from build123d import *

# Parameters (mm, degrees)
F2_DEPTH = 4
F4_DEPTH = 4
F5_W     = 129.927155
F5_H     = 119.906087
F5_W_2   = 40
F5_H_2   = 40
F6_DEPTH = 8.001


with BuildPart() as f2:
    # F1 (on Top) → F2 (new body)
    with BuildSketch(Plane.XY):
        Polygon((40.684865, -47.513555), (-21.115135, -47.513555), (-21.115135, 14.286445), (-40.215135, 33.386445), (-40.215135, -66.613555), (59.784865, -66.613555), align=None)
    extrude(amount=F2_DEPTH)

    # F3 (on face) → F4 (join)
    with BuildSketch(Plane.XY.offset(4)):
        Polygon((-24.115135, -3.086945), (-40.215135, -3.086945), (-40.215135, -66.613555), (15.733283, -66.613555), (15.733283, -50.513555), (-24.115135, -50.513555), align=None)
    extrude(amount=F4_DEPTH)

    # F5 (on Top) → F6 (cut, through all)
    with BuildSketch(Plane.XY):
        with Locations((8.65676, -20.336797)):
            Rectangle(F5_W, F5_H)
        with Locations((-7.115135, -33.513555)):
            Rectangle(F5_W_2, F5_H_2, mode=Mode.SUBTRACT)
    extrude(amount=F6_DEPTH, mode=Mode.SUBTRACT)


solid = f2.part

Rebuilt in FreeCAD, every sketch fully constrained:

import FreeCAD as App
import Part
import Sketcher
Q = App.Units.Quantity

doc = App.newDocument("Part")
params = doc.addObject("Spreadsheet::Sheet", "Params")
for row, (alias, value) in enumerate([
    ("sketch1_width", "100 mm"),
    ("sketch1_width2", "61.8 mm"),
    ("pad1_length", "4 mm"),
    ("sketch2_width", "16.1 mm"),
    ("pad2_length", "4 mm"),
    ("sketch3_width", "40 mm"),
], start=1):
    params.set(f"A{row}", alias)
    params.set(f"B{row}", "=" + value)
    params.setAlias(f"B{row}", alias)

body = doc.addObject("PartDesign::Body", "Body")

sketch1 = body.newObject("Sketcher::SketchObject", "Sketch")
sketch1.AttachmentSupport = (doc.getObject("XY_Plane"), [""])
sketch1.MapMode = "FlatFace"
sketch1.addGeometry(Part.LineSegment(App.Vector(41, -48, 0), App.Vector(-21, -48, 0)), False)
sketch1.addGeometry(Part.LineSegment(App.Vector(-21, -48, 0), App.Vector(-21, 14, 0)), False)
sketch1.addGeometry(Part.LineSegment(App.Vector(-21, 14, 0), App.Vector(-40, 33, 0)), False)
sketch1.addGeometry(Part.LineSegment(App.Vector(-40, 33, 0), App.Vector(-40, -67, 0)), False)
sketch1.addGeometry(Part.LineSegment(App.Vector(-40, -67, 0), App.Vector(60, -67, 0)), False)
sketch1.addGeometry(Part.LineSegment(App.Vector(60, -67, 0), App.Vector(41, -48, 0)), False)
sketch1.addConstraint(Sketcher.Constraint("Coincident", 0, 2, 1, 1))
sketch1.addConstraint(Sketcher.Constraint("Coincident", 1, 2, 2, 1))
sketch1.addConstraint(Sketcher.Constraint("Coincident", 2, 2, 3, 1))
sketch1.addConstraint(Sketcher.Constraint("Coincident", 3, 2, 4, 1))
sketch1.addConstraint(Sketcher.Constraint("Coincident", 4, 2, 5, 1))
sketch1.addConstraint(Sketcher.Constraint("Coincident", 5, 2, 0, 1))
sketch1.addConstraint(Sketcher.Constraint("Horizontal", 0))
sketch1.addConstraint(Sketcher.Constraint("Vertical", 1))
sketch1.addConstraint(Sketcher.Constraint("Vertical", 3))
sketch1.addConstraint(Sketcher.Constraint("Horizontal", 4))
sketch1.addConstraint(Sketcher.Constraint("Parallel", 2, 5))
sketch1.addConstraint(Sketcher.Constraint("Equal", 0, 1))
sketch1.addConstraint(Sketcher.Constraint("Equal", 4, 3))
sketch1.addConstraint(Sketcher.Constraint("Equal", 2, 5))
sketch1.addConstraint(Sketcher.Constraint("DistanceX", 4, 1, 4, 2, Q("100 mm")))
sketch1.addConstraint(Sketcher.Constraint("DistanceX", 0, 2, 0, 1, Q("61.8 mm")))
sketch1.addConstraint(Sketcher.Constraint("DistanceX", 0, 2, -1, 1, Q("21.115135 mm")))
sketch1.addConstraint(Sketcher.Constraint("DistanceY", 0, 2, -1, 1, Q("47.513555 mm")))
sketch1.setExpression("Constraints[14]", "Params.sketch1_width")
sketch1.setExpression("Constraints[15]", "Params.sketch1_width2")
pad1 = body.newObject("PartDesign::Pad", "Pad")
pad1.Profile = sketch1
pad1.setExpression("Length", "Params.pad1_length")

sketch2 = body.newObject("Sketcher::SketchObject", "Sketch001")
sketch2.AttachmentSupport = (doc.getObject("XY_Plane"), [""])
sketch2.MapMode = "FlatFace"
sketch2.AttachmentOffset = App.Placement(App.Vector(0, 0, 4), App.Rotation())
sketch2.addGeometry(Part.LineSegment(App.Vector(-24, -3, 0), App.Vector(-40, -3, 0)), False)
sketch2.addGeometry(Part.LineSegment(App.Vector(-40, -3, 0), App.Vector(-40, -67, 0)), False)
sketch2.addGeometry(Part.LineSegment(App.Vector(-40, -67, 0), App.Vector(16, -67, 0)), False)
sketch2.addGeometry(Part.LineSegment(App.Vector(16, -67, 0), App.Vector(16, -51, 0)), False)
sketch2.addGeometry(Part.LineSegment(App.Vector(16, -51, 0), App.Vector(-24, -51, 0)), False)
sketch2.addGeometry(Part.LineSegment(App.Vector(-24, -51, 0), App.Vector(-24, -3, 0)), False)
sketch2.addConstraint(Sketcher.Constraint("Coincident", 0, 2, 1, 1))
sketch2.addConstraint(Sketcher.Constraint("Coincident", 1, 2, 2, 1))
sketch2.addConstraint(Sketcher.Constraint("Coincident", 2, 2, 3, 1))
sketch2.addConstraint(Sketcher.Constraint("Coincident", 3, 2, 4, 1))
sketch2.addConstraint(Sketcher.Constraint("Coincident", 4, 2, 5, 1))
sketch2.addConstraint(Sketcher.Constraint("Coincident", 5, 2, 0, 1))
sketch2.addConstraint(Sketcher.Constraint("Horizontal", 0))
sketch2.addConstraint(Sketcher.Constraint("Vertical", 1))
sketch2.addConstraint(Sketcher.Constraint("Horizontal", 2))
sketch2.addConstraint(Sketcher.Constraint("Vertical", 3))
sketch2.addConstraint(Sketcher.Constraint("Horizontal", 4))
sketch2.addConstraint(Sketcher.Constraint("Vertical", 5))
sketch2.addConstraint(Sketcher.Constraint("Equal", 0, 3))
sketch2.addConstraint(Sketcher.Constraint("DistanceX", 0, 2, 0, 1, Q("16.1 mm")))
sketch2.addConstraint(Sketcher.Constraint("DistanceY", 1, 2, 1, 1, Q("63.52661 mm")))
sketch2.addConstraint(Sketcher.Constraint("DistanceX", 2, 1, 2, 2, Q("55.948418 mm")))
sketch2.addConstraint(Sketcher.Constraint("DistanceX", 0, 2, -1, 1, Q("40.215135 mm")))
sketch2.addConstraint(Sketcher.Constraint("DistanceY", 0, 2, -1, 1, Q("3.086945 mm")))
sketch2.setExpression("Constraints[13]", "Params.sketch2_width")
pad2 = body.newObject("PartDesign::Pad", "Pad001")
pad2.Profile = sketch2
pad2.setExpression("Length", "Params.pad2_length")

sketch3 = body.newObject("Sketcher::SketchObject", "Sketch002")
sketch3.AttachmentSupport = (doc.getObject("XY_Plane"), [""])
sketch3.MapMode = "FlatFace"
sketch3.addGeometry(Part.LineSegment(App.Vector(-56, 40, 0), App.Vector(-56, -80, 0)), False)
sketch3.addGeometry(Part.LineSegment(App.Vector(-56, -80, 0), App.Vector(74, -80, 0)), False)
sketch3.addGeometry(Part.LineSegment(App.Vector(74, -80, 0), App.Vector(74, 40, 0)), False)
sketch3.addGeometry(Part.LineSegment(App.Vector(74, 40, 0), App.Vector(-56, 40, 0)), False)
sketch3.addGeometry(Part.LineSegment(App.Vector(13, -54, 0), App.Vector(-27, -54, 0)), False)
sketch3.addGeometry(Part.LineSegment(App.Vector(-27, -54, 0), App.Vector(-27, -14, 0)), False)
sketch3.addGeometry(Part.LineSegment(App.Vector(-27, -14, 0), App.Vector(13, -14, 0)), False)
sketch3.addGeometry(Part.LineSegment(App.Vector(13, -14, 0), App.Vector(13, -54, 0)), False)
sketch3.addConstraint(Sketcher.Constraint("Coincident", 0, 2, 1, 1))
sketch3.addConstraint(Sketcher.Constraint("Coincident", 1, 2, 2, 1))
sketch3.addConstraint(Sketcher.Constraint("Coincident", 2, 2, 3, 1))
sketch3.addConstraint(Sketcher.Constraint("Coincident", 3, 2, 0, 1))
sketch3.addConstraint(Sketcher.Constraint("Coincident", 4, 2, 5, 1))
sketch3.addConstraint(Sketcher.Constraint("Coincident", 5, 2, 6, 1))
sketch3.addConstraint(Sketcher.Constraint("Coincident", 6, 2, 7, 1))
sketch3.addConstraint(Sketcher.Constraint("Coincident", 7, 2, 4, 1))
sketch3.addConstraint(Sketcher.Constraint("Vertical", 0))
sketch3.addConstraint(Sketcher.Constraint("Horizontal", 1))
sketch3.addConstraint(Sketcher.Constraint("Vertical", 2))
sketch3.addConstraint(Sketcher.Constraint("Horizontal", 3))
sketch3.addConstraint(Sketcher.Constraint("Horizontal", 4))
sketch3.addConstraint(Sketcher.Constraint("Vertical", 5))
sketch3.addConstraint(Sketcher.Constraint("Horizontal", 6))
sketch3.addConstraint(Sketcher.Constraint("Vertical", 7))
sketch3.addConstraint(Sketcher.Constraint("Equal", 6, 5))
sketch3.addConstraint(Sketcher.Constraint("DistanceX", 4, 2, 4, 1, Q("40 mm")))
sketch3.addConstraint(Sketcher.Constraint("DistanceY", 4, 2, 3, 2, Q("93.129801 mm")))
sketch3.addConstraint(Sketcher.Constraint("DistanceX", 1, 1, 1, 2, Q("129.927155 mm")))
sketch3.addConstraint(Sketcher.Constraint("DistanceY", 0, 2, 0, 1, Q("119.906087 mm")))
sketch3.addConstraint(Sketcher.Constraint("DistanceY", 0, 2, -1, 1, Q("80.28984 mm")))
sketch3.addConstraint(Sketcher.Constraint("DistanceX", 0, 2, -1, 1, Q("56.306818 mm")))
sketch3.addConstraint(Sketcher.Constraint("DistanceX", 4, 2, -1, 1, Q("27.115135 mm")))
sketch3.setExpression("Constraints[17]", "Params.sketch3_width")
pocket1 = body.newObject("PartDesign::Pocket", "Pocket")
pocket1.Profile = sketch3
pocket1.Type = "ThroughAll"
pocket1.Reversed = True

doc.recompute()
